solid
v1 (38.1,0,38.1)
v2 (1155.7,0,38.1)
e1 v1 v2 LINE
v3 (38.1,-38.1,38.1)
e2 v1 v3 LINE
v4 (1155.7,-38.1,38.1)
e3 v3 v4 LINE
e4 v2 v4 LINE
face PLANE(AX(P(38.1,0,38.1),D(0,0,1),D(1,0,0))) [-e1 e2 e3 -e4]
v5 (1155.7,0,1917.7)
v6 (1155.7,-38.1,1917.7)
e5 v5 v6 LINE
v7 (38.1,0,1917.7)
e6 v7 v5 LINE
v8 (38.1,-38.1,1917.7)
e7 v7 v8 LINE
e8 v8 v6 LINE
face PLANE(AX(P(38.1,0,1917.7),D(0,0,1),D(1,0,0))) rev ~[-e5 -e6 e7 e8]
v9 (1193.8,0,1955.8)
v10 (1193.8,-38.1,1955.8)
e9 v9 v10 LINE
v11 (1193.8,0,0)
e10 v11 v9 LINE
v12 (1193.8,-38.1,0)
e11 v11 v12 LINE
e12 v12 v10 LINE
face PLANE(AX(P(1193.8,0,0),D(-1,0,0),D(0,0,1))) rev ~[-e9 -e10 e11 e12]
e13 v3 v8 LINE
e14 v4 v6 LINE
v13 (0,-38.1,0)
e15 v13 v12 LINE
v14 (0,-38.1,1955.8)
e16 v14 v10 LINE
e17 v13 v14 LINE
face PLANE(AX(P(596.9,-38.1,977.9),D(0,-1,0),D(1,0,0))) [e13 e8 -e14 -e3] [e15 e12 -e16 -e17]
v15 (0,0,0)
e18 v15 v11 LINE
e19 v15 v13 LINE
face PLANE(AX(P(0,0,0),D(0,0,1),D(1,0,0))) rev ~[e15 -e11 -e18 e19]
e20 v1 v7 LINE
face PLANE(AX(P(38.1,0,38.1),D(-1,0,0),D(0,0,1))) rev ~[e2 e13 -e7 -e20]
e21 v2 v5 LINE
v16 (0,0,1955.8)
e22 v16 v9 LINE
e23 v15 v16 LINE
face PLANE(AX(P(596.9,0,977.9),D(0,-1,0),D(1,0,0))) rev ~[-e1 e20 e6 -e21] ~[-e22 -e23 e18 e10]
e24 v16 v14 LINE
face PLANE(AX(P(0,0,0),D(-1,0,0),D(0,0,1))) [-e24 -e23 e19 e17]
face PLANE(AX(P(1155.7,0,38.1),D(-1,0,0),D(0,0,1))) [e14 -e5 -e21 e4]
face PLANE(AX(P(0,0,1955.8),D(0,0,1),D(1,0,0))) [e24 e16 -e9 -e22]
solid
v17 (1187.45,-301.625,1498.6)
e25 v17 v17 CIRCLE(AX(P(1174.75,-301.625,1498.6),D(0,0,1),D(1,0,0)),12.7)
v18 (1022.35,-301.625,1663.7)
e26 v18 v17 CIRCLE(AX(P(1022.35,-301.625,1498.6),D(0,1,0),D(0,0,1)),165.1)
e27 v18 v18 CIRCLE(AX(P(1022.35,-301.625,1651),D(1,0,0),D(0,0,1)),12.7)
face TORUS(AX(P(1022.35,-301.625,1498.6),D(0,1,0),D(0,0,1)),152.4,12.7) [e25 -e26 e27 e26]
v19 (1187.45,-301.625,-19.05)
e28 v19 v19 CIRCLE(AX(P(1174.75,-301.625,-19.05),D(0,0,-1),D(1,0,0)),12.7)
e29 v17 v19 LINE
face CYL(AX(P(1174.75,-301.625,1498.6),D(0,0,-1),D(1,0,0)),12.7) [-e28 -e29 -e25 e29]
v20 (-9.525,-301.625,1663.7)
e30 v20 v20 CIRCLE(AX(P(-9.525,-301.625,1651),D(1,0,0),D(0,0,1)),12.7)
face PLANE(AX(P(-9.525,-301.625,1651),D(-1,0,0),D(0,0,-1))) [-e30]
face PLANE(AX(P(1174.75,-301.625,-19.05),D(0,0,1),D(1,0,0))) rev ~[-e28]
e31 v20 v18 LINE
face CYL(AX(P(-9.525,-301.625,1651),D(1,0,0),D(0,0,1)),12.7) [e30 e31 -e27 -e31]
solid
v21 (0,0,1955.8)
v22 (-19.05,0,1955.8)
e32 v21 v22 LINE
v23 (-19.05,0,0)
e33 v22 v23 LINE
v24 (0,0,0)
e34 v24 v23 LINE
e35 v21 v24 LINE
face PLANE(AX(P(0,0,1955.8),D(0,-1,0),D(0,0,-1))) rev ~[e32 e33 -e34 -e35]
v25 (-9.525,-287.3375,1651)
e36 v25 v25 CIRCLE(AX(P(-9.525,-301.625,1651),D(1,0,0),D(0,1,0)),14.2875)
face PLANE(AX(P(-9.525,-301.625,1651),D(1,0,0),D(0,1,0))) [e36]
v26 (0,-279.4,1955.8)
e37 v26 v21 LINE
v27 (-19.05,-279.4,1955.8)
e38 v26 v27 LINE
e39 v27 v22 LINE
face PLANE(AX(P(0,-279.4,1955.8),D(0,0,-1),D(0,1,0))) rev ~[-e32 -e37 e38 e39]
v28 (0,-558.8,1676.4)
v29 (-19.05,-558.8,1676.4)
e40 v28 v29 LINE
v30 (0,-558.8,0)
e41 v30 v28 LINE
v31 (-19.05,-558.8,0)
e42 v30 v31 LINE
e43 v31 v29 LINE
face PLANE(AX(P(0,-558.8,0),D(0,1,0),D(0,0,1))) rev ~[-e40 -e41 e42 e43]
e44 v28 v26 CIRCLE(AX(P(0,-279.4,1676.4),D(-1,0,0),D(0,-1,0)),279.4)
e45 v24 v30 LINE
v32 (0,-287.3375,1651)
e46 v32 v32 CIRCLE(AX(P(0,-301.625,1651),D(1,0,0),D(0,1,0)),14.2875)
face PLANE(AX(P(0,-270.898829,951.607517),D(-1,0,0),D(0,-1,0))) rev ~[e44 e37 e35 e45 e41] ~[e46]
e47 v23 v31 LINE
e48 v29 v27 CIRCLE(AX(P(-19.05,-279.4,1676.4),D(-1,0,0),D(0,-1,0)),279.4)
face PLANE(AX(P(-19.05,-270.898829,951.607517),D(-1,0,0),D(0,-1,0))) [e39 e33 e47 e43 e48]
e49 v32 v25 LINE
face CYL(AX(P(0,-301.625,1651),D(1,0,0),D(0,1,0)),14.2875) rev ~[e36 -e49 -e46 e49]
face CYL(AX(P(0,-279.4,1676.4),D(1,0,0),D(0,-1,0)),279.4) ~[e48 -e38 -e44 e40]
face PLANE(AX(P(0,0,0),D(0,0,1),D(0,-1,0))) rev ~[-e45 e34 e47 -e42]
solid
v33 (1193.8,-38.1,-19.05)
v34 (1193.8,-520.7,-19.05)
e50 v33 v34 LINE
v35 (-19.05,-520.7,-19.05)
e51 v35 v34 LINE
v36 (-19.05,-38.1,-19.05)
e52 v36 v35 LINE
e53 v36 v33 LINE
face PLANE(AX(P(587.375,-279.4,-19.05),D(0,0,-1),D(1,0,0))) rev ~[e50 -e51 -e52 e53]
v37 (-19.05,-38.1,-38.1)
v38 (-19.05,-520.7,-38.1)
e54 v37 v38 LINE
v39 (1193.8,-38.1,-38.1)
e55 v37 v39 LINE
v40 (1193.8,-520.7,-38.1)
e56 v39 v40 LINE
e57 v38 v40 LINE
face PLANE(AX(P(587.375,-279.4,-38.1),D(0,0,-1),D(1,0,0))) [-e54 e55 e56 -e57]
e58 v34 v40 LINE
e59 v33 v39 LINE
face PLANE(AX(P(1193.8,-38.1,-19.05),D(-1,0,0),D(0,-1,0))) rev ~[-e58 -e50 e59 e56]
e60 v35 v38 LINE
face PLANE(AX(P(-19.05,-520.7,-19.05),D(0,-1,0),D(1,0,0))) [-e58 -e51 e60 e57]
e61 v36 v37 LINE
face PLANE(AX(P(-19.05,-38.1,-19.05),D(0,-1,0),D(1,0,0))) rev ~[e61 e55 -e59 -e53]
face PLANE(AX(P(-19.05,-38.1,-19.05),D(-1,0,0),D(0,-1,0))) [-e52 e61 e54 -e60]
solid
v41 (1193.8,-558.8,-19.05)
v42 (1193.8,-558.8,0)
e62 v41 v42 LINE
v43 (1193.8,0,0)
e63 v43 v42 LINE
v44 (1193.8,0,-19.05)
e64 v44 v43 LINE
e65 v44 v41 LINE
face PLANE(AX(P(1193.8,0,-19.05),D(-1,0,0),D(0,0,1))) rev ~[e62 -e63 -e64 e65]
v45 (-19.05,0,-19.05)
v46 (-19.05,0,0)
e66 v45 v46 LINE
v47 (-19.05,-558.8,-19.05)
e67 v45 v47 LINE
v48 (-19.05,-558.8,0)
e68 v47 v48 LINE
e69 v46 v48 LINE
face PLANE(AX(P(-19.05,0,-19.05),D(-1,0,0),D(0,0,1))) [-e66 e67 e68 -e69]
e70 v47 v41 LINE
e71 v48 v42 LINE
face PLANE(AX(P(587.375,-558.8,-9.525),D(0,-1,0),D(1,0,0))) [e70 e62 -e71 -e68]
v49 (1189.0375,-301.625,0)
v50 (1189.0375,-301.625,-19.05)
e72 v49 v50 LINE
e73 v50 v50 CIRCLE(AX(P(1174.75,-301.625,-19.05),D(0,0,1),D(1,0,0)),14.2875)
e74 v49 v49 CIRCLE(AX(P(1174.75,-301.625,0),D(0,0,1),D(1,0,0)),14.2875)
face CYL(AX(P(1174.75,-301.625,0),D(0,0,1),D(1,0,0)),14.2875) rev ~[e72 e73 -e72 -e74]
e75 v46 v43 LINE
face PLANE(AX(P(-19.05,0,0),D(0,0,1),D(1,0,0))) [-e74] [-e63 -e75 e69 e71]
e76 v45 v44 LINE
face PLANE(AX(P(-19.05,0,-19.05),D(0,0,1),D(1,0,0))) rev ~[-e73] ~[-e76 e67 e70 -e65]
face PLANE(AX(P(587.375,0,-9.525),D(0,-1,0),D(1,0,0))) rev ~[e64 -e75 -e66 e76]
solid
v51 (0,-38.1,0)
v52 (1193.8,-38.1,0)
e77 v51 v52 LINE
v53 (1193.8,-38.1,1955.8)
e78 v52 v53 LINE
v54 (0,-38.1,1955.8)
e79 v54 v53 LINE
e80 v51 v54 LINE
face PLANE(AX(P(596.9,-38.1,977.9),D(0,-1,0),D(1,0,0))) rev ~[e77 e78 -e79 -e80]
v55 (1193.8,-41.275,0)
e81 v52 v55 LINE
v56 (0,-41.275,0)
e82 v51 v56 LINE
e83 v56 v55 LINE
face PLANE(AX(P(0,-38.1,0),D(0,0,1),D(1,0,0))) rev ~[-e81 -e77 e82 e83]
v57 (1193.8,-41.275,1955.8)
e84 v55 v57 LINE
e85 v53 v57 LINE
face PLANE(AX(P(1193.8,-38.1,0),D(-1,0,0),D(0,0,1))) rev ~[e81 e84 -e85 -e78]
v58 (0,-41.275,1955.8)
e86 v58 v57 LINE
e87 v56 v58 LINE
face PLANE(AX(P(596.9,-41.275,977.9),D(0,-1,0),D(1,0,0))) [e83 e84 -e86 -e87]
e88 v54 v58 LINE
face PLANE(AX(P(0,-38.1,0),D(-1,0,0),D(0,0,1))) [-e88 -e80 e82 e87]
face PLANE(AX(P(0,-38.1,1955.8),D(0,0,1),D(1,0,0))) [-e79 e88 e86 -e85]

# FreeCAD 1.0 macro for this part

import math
import FreeCAD as App
import Part
import Sketcher
from FreeCAD import Vector
Q = App.Units.Quantity


def add_polygon(sketch, points):
    """Adds a closed chain of lines whose ends are joined by coincident constraints."""
    first, n = sketch.GeometryCount, len(points)
    for a, b in zip(points, points[1:] + points[:1]):
        sketch.addGeometry(Part.LineSegment(App.Vector(*a, 0), App.Vector(*b, 0)), False)
    for i in range(n):
        sketch.addConstraint(Sketcher.Constraint("Coincident", first + i, 2, first + (i + 1) % n, 1))

doc = App.newDocument("Part")
params = doc.addObject("Spreadsheet::Sheet", "Params")
for row, (alias, value) in enumerate([
    ("sketch1_width", "47 in"),
    ("sketch1_width2", "44 in"),
    ("sketch1_height", "77 in"),
    ("sketch1_height2", "74 in"),
    ("pad1_length", "1.5 in"),
    ("sketch2_width", "47 in"),
    ("sketch2_height", "77 in"),
    ("pad2_length", "0.125 in"),
    ("sketch3_width", "47.75 in"),
    ("sketch3_height", "0.75 in"),
    ("pad3_length", "22 in"),
    ("sketch4_diameter", "1.125 in"),
    ("sketch5_radius", "11 in"),
    ("sketch5_width", "22 in"),
    ("sketch5_height", "66 in"),
    ("pad4_length", "0.75 in"),
    ("sketch6_diameter", "1.125 in"),
    ("pocket2_length", "0.375 in"),
    ("sketch7_height", "19 in"),
    ("sketch7_width", "47.75 in"),
    ("pad5_length", "0.75 in"),
    ("sketch8_diameter", "1 in"),
    ("sketch9_radius", "6 in"),
    ("sketch9_height", "59.75 in"),
    ("sketch9_width", "40.625 in"),
], start=1):
    params.set(f"A{row}", alias)
    params.set(f"B{row}", "=" + value)
    params.setAlias(f"B{row}", alias)

body = doc.addObject("PartDesign::Body", "Body")

# Sketch on XZ plane
sketch1 = doc.addObject("Sketcher::SketchObject", "Sketch")
body.addObject(sketch1)
sketch1.AttachmentSupport = (doc.XZ_Plane, [""])
sketch1.MapMode = "FlatFace"
add_polygon(sketch1, [(0, 1956), (0, 0), (1194, 0), (1194, 1956)])  # lines 0-3
add_polygon(sketch1, [(1156, 38), (38, 38), (38, 1918), (1156, 1918)])  # lines 4-7
sketch1.addConstraint(Sketcher.Constraint("Vertical", 0))
sketch1.addConstraint(Sketcher.Constraint("Horizontal", 1))
sketch1.addConstraint(Sketcher.Constraint("Vertical", 2))
sketch1.addConstraint(Sketcher.Constraint("Horizontal", 3))
sketch1.addConstraint(Sketcher.Constraint("Horizontal", 4))
sketch1.addConstraint(Sketcher.Constraint("Vertical", 5))
sketch1.addConstraint(Sketcher.Constraint("Horizontal", 6))
sketch1.addConstraint(Sketcher.Constraint("Vertical", 7))
sketch1.addConstraint(Sketcher.Constraint("Coincident", 0, 2, -1, 1))
sketch1.addConstraint(Sketcher.Constraint("DistanceX", 1, 1, 1, 2, Q("47 in")))
sketch1.addConstraint(Sketcher.Constraint("DistanceX", 4, 2, 4, 1, Q("44 in")))
sketch1.addConstraint(Sketcher.Constraint("DistanceY", 0, 2, 0, 1, Q("77 in")))
sketch1.addConstraint(Sketcher.Constraint("DistanceY", 5, 1, 5, 2, Q("74 in")))
sketch1.addConstraint(Sketcher.Constraint("DistanceX", -1, 1, 4, 2, Q("1.5 in")))
sketch1.addConstraint(Sketcher.Constraint("DistanceY", -1, 1, 4, 2, Q("1.5 in")))
sketch1.setExpression("Constraints[17]", "Params.sketch1_width")
sketch1.setExpression("Constraints[18]", "Params.sketch1_width2")
sketch1.setExpression("Constraints[19]", "Params.sketch1_height")
sketch1.setExpression("Constraints[20]", "Params.sketch1_height2")
pad1 = doc.addObject("PartDesign::Pad", "Pad")
body.addObject(pad1)
pad1.Profile = sketch1
pad1.setExpression("Length", "Params.pad1_length")
body2 = doc.addObject("PartDesign::Body", "Body001")

# Sketch on XZ plane
sketch2 = doc.addObject("Sketcher::SketchObject", "Sketch001")
body2.addObject(sketch2)
sketch2.AttachmentSupport = (doc.getObject("XZ_Plane001"), [""])
sketch2.MapMode = "FlatFace"
sketch2.AttachmentOffset = App.Placement(Vector(0, 0, 1.5 * 25.4), App.Rotation())
add_polygon(sketch2, [(0, 1956), (0, 0), (1194, 0), (1194, 1956)])  # lines 0-3
sketch2.addConstraint(Sketcher.Constraint("Vertical", 0))
sketch2.addConstraint(Sketcher.Constraint("Horizontal", 1))
sketch2.addConstraint(Sketcher.Constraint("Vertical", 2))
sketch2.addConstraint(Sketcher.Constraint("Horizontal", 3))
sketch2.addConstraint(Sketcher.Constraint("Coincident", 0, 2, -1, 1))
sketch2.addConstraint(Sketcher.Constraint("DistanceX", 1, 1, 1, 2, Q("47 in")))
sketch2.addConstraint(Sketcher.Constraint("DistanceY", 0, 2, 0, 1, Q("77 in")))
sketch2.setExpression("Constraints[9]", "Params.sketch2_width")
sketch2.setExpression("Constraints[10]", "Params.sketch2_height")
pad2 = doc.addObject("PartDesign::Pad", "Pad001")
body2.addObject(pad2)
pad2.Profile = sketch2
pad2.setExpression("Length", "Params.pad2_length")
body3 = doc.addObject("PartDesign::Body", "Body002")

# Sketch on XZ plane
sketch3 = doc.addObject("Sketcher::SketchObject", "Sketch002")
body3.addObject(sketch3)
sketch3.AttachmentSupport = (doc.getObject("XZ_Plane002"), [""])
sketch3.MapMode = "FlatFace"
add_polygon(sketch3, [(-19, 0), (-19, -19), (1194, -19), (1194, 0)])  # lines 0-3
sketch3.addConstraint(Sketcher.Constraint("Vertical", 0))
sketch3.addConstraint(Sketcher.Constraint("Horizontal", 1))
sketch3.addConstraint(Sketcher.Constraint("Vertical", 2))
sketch3.addConstraint(Sketcher.Constraint("Horizontal", 3))
sketch3.addConstraint(Sketcher.Constraint("PointOnObject", 2, 2, -1))
sketch3.addConstraint(Sketcher.Constraint("DistanceX", -1, 1, 1, 2, Q("47 in")))
sketch3.addConstraint(Sketcher.Constraint("DistanceX", 1, 1, 1, 2, Q("47.75 in")))
sketch3.addConstraint(Sketcher.Constraint("DistanceY", 0, 2, 0, 1, Q("0.75 in")))
sketch3.setExpression("Constraints[10]", "Params.sketch3_width")
sketch3.setExpression("Constraints[11]", "Params.sketch3_height")
pad3 = doc.addObject("PartDesign::Pad", "Pad002")
body3.addObject(pad3)
pad3.Profile = sketch3
pad3.setExpression("Length", "Params.pad3_length")

# Sketch on XY plane
sketch4 = doc.addObject("Sketcher::SketchObject", "Sketch003")
body3.addObject(sketch4)
sketch4.AttachmentSupport = (doc.getObject("XY_Plane002"), [""])
sketch4.MapMode = "FlatFace"
sketch4.addGeometry(Part.Circle(Vector(1175, -302, 0), Vector(0, 0, 1), 14), False)
sketch4.addConstraint(Sketcher.Constraint("Diameter", 0, Q("1.125 in")))
sketch4.addConstraint(Sketcher.Constraint("DistanceX", -1, 1, 0, 3, Q("46.25 in")))
sketch4.addConstraint(Sketcher.Constraint("DistanceY", 0, 3, -1, 1, Q("11.875 in")))
sketch4.setExpression("Constraints[0]", "Params.sketch4_diameter")
pocket1 = doc.addObject("PartDesign::Pocket", "Pocket")
body3.addObject(pocket1)
pocket1.Profile = sketch4
pocket1.Type = "ThroughAll"
body4 = doc.addObject("PartDesign::Body", "Body003")

# Sketch on YZ plane
sketch5 = doc.addObject("Sketcher::SketchObject", "Sketch004")
body4.addObject(sketch5)
sketch5.AttachmentSupport = (doc.getObject("YZ_Plane003"), [""])
sketch5.MapMode = "FlatFace"
sketch5.addGeometry(Part.LineSegment(Vector(0, 0, 0), Vector(-559, 0, 0)), False)
sketch5.addGeometry(Part.LineSegment(Vector(-559, 0, 0), Vector(-559, 1676, 0)), False)
sketch5.addGeometry(Part.ArcOfCircle(Part.Circle(Vector(-279, 1676, 0), Vector(0, 0, 1), 279), math.radians(90), math.radians(180)), False)
sketch5.addGeometry(Part.LineSegment(Vector(-279, 1956, 0), Vector(0, 1956, 0)), False)
sketch5.addGeometry(Part.LineSegment(Vector(0, 1956, 0), Vector(0, 0, 0)), False)
sketch5.addConstraint(Sketcher.Constraint("Coincident", 0, 2, 1, 1))
sketch5.addConstraint(Sketcher.Constraint("Tangent", 1, 2, 2, 2))
sketch5.addConstraint(Sketcher.Constraint("Tangent", 2, 1, 3, 1))
sketch5.addConstraint(Sketcher.Constraint("Coincident", 3, 2, 4, 1))
sketch5.addConstraint(Sketcher.Constraint("Coincident", 4, 2, 0, 1))
sketch5.addConstraint(Sketcher.Constraint("Horizontal", 0))
sketch5.addConstraint(Sketcher.Constraint("Vertical", 1))
sketch5.addConstraint(Sketcher.Constraint("Horizontal", 3))
sketch5.addConstraint(Sketcher.Constraint("Vertical", 4))
sketch5.addConstraint(Sketcher.Constraint("Coincident", 4, 2, -1, 1))
sketch5.addConstraint(Sketcher.Constraint("Radius", 2, Q("11 in")))
sketch5.addConstraint(Sketcher.Constraint("DistanceX", 0, 2, 0, 1, Q("22 in")))
sketch5.addConstraint(Sketcher.Constraint("DistanceY", 1, 1, 1, 2, Q("66 in")))
sketch5.setExpression("Constraints[10]", "Params.sketch5_radius")
sketch5.setExpression("Constraints[11]", "Params.sketch5_width")
sketch5.setExpression("Constraints[12]", "Params.sketch5_height")
pad4 = doc.addObject("PartDesign::Pad", "Pad003")
body4.addObject(pad4)
pad4.Profile = sketch5
pad4.setExpression("Length", "Params.pad4_length")
pad4.Reversed = True

# Sketch on YZ plane
sketch6 = doc.addObject("Sketcher::SketchObject", "Sketch005")
body4.addObject(sketch6)
sketch6.AttachmentSupport = (doc.getObject("YZ_Plane003"), [""])
sketch6.MapMode = "FlatFace"
sketch6.addGeometry(Part.Circle(Vector(-302, 1651, 0), Vector(0, 0, 1), 14), False)
sketch6.addConstraint(Sketcher.Constraint("Diameter", 0, Q("1.125 in")))
sketch6.addConstraint(Sketcher.Constraint("DistanceY", -1, 1, 0, 3, Q("65 in")))
sketch6.addConstraint(Sketcher.Constraint("DistanceX", 0, 3, -1, 1, Q("11.875 in")))
sketch6.setExpression("Constraints[0]", "Params.sketch6_diameter")
pocket2 = doc.addObject("PartDesign::Pocket", "Pocket001")
body4.addObject(pocket2)
pocket2.Profile = sketch6
pocket2.setExpression("Length", "Params.pocket2_length")
body5 = doc.addObject("PartDesign::Body", "Body004")

# Sketch on XY plane
sketch7 = doc.addObject("Sketcher::SketchObject", "Sketch006")
body5.addObject(sketch7)
sketch7.AttachmentSupport = (doc.getObject("XY_Plane004"), [""])
sketch7.MapMode = "FlatFace"
sketch7.AttachmentOffset = App.Placement(Vector(0, 0, -0.75 * 25.4), App.Rotation())
add_polygon(sketch7, [(-19, -521), (-19, -38), (1194, -38), (1194, -521)])  # lines 0-3
sketch7.addConstraint(Sketcher.Constraint("Vertical", 0))
sketch7.addConstraint(Sketcher.Constraint("Horizontal", 1))
sketch7.addConstraint(Sketcher.Constraint("Vertical", 2))
sketch7.addConstraint(Sketcher.Constraint("Horizontal", 3))
sketch7.addConstraint(Sketcher.Constraint("DistanceY", 0, 1, 0, 2, Q("19 in")))
sketch7.addConstraint(Sketcher.Constraint("DistanceX", -1, 1, 1, 2, Q("47 in")))
sketch7.addConstraint(Sketcher.Constraint("DistanceX", 1, 1, 1, 2, Q("47.75 in")))
sketch7.addConstraint(Sketcher.Constraint("DistanceY", 0, 2, -1, 1, Q("1.5 in")))
sketch7.setExpression("Constraints[8]", "Params.sketch7_height")
sketch7.setExpression("Constraints[10]", "Params.sketch7_width")
pad5 = doc.addObject("PartDesign::Pad", "Pad004")
body5.addObject(pad5)
pad5.Profile = sketch7
pad5.setExpression("Length", "Params.pad5_length")
pad5.Reversed = True
body6 = doc.addObject("PartDesign::Body", "Body005")

# Sketch on XY plane
sketch8 = doc.addObject("Sketcher::SketchObject", "Sketch007")
body6.addObject(sketch8)
sketch8.AttachmentSupport = (doc.getObject("XY_Plane005"), [""])
sketch8.MapMode = "FlatFace"
sketch8.AttachmentOffset = App.Placement(Vector(0, 0, -0.75 * 25.4), App.Rotation())
sketch8.addGeometry(Part.Circle(Vector(1175, -302, 0), Vector(0, 0, 1), 13), False)
sketch8.addConstraint(Sketcher.Constraint("Diameter", 0, Q("1 in")))
sketch8.addConstraint(Sketcher.Constraint("DistanceX", -1, 1, 0, 3, Q("46.25 in")))
sketch8.addConstraint(Sketcher.Constraint("DistanceY", 0, 3, -1, 1, Q("11.875 in")))
sketch8.setExpression("Constraints[0]", "Params.sketch8_diameter")

# Sketch on XZ plane
sketch9 = doc.addObject("Sketcher::SketchObject", "Sketch008")
body6.addObject(sketch9)
sketch9.AttachmentSupport = (doc.getObject("XZ_Plane005"), [""])
sketch9.MapMode = "FlatFace"
sketch9.AttachmentOffset = App.Placement(Vector(0, 0, 11.875 * 25.4), App.Rotation())
sketch9.addGeometry(Part.LineSegment(Vector(-10, 1651, 0), Vector(1022, 1651, 0)), False)
sketch9.addGeometry(Part.ArcOfCircle(Part.Circle(Vector(1022, 1499, 0), Vector(0, 0, 1), 152), math.radians(0), math.radians(90)), False)
sketch9.addGeometry(Part.LineSegment(Vector(1175, 1499, 0), Vector(1175, -19, 0)), False)
sketch9.addConstraint(Sketcher.Constraint("Tangent", 0, 2, 1, 2))
sketch9.addConstraint(Sketcher.Constraint("Tangent", 1, 1, 2, 1))
sketch9.addConstraint(Sketcher.Constraint("Horizontal", 0))
sketch9.addConstraint(Sketcher.Constraint("Vertical", 2))
sketch9.addConstraint(Sketcher.Constraint("Radius", 1, Q("6 in")))
sketch9.addConstraint(Sketcher.Constraint("DistanceY", -1, 1, 1, 3, Q("59 in")))
sketch9.addConstraint(Sketcher.Constraint("DistanceY", 2, 2, 2, 1, Q("59.75 in")))
sketch9.addConstraint(Sketcher.Constraint("DistanceX", 0, 1, 0, 2, Q("40.625 in")))
sketch9.addConstraint(Sketcher.Constraint("DistanceX", -1, 1, 1, 3, Q("40.25 in")))
sketch9.setExpression("Constraints[4]", "Params.sketch9_radius")
sketch9.setExpression("Constraints[6]", "Params.sketch9_height")
sketch9.setExpression("Constraints[7]", "Params.sketch9_width")
doc.recompute()

additivepipe = doc.addObject("PartDesign::AdditivePipe", "AdditivePipe")
body6.addObject(additivepipe)
additivepipe.Profile = sketch8
additivepipe.Spine = (sketch9, ["Edge1", "Edge2", "Edge3"])

doc.recompute()
